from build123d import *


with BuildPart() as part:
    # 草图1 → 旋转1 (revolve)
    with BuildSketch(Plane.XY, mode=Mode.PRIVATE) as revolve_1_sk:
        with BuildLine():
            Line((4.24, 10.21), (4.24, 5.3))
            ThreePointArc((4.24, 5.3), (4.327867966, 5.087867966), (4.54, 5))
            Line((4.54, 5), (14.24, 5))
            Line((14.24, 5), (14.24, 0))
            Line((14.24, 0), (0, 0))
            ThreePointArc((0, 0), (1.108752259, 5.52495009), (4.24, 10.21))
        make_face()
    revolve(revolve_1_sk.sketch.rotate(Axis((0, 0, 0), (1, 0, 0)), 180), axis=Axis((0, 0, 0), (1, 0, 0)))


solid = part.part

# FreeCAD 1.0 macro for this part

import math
import FreeCAD as App
import Part
import Sketcher
from FreeCAD import Vector
Q = App.Units.Quantity

doc = App.newDocument("Part")
params = doc.addObject("Spreadsheet::Sheet", "Params")
for row, (alias, value) in enumerate([
    ("sketch1_radius", "14.5 mm"),
    ("sketch1_radius2", "0.3 mm"),
    ("sketch1_height", "5 mm"),
    ("sketch1_width", "9.7 mm"),
    ("sketch1_width2", "14.24 mm"),
    ("revolution_angle", "360 deg"),
], start=1):
    params.set(f"A{row}", alias)
    params.set(f"B{row}", "=" + value)
    params.setAlias(f"B{row}", alias)

body = doc.addObject("PartDesign::Body", "Body")

sketch1 = body.newObject("Sketcher::SketchObject", "Sketch")
sketch1.AttachmentSupport = (doc.getObject("XY_Plane"), [""])
sketch1.MapMode = "FlatFace"
sketch1.addGeometry([
    Part.LineSegment(Vector(4.24, 5.3, 0), Vector(4.24, 10.21, 0)),
    Part.ArcOfCircle(Part.Circle(Vector(14.499955, -0.036137, 0), Vector(0, 0, 1), 14.5), math.radians(135.038609), math.radians(179.857207)),
    Part.LineSegment(Vector(0, 0, 0), Vector(14.24, 0, 0)),
    Part.LineSegment(Vector(14.24, 0, 0), Vector(14.24, 5, 0)),
    Part.LineSegment(Vector(14.24, 5, 0), Vector(4.54, 5, 0)),
    Part.ArcOfCircle(Part.Circle(Vector(4.54, 5.3, 0), Vector(0, 0, 1), 0.3), math.radians(-180), math.radians(-90)),
], False)
sketch1.addConstraint([
    Sketcher.Constraint("Coincident", 0, 2, 1, 1),
    Sketcher.Constraint("Coincident", 1, 2, 2, 1),
    Sketcher.Constraint("Coincident", 2, 2, 3, 1),
    Sketcher.Constraint("Coincident", 3, 2, 4, 1),
    Sketcher.Constraint("Tangent", 4, 2, 5, 2),
    Sketcher.Constraint("Tangent", 5, 1, 0, 1),
    Sketcher.Constraint("Vertical", 0),
    Sketcher.Constraint("Horizontal", 2),
    Sketcher.Constraint("Vertical", 3),
    Sketcher.Constraint("Horizontal", 4),
    Sketcher.Constraint("Coincident", 1, 2, -1, 1),
    Sketcher.Constraint("Radius", 1, Q("14.5 mm")),
    Sketcher.Constraint("Radius", 5, Q("0.3 mm")),
    Sketcher.Constraint("DistanceY", 3, 1, 3, 2, Q("5 mm")),
    Sketcher.Constraint("DistanceX", 4, 2, 4, 1, Q("9.7 mm")),
    Sketcher.Constraint("DistanceX", 2, 1, 2, 2, Q("14.24 mm")),
    Sketcher.Constraint("DistanceY", 0, 1, 0, 2, Q("4.91 mm")),
])
sketch1.setExpression("Constraints[11]", "Params.sketch1_radius")
sketch1.setExpression("Constraints[12]", "Params.sketch1_radius2")
sketch1.setExpression("Constraints[13]", "Params.sketch1_height")
sketch1.setExpression("Constraints[14]", "Params.sketch1_width")
sketch1.setExpression("Constraints[15]", "Params.sketch1_width2")
revolution = body.newObject("PartDesign::Revolution", "Revolution")
revolution.Profile = sketch1
revolution.ReferenceAxis = (sketch1, ["H_Axis"])
revolution.setExpression("Angle", "Params.revolution_angle")

doc.recompute()
